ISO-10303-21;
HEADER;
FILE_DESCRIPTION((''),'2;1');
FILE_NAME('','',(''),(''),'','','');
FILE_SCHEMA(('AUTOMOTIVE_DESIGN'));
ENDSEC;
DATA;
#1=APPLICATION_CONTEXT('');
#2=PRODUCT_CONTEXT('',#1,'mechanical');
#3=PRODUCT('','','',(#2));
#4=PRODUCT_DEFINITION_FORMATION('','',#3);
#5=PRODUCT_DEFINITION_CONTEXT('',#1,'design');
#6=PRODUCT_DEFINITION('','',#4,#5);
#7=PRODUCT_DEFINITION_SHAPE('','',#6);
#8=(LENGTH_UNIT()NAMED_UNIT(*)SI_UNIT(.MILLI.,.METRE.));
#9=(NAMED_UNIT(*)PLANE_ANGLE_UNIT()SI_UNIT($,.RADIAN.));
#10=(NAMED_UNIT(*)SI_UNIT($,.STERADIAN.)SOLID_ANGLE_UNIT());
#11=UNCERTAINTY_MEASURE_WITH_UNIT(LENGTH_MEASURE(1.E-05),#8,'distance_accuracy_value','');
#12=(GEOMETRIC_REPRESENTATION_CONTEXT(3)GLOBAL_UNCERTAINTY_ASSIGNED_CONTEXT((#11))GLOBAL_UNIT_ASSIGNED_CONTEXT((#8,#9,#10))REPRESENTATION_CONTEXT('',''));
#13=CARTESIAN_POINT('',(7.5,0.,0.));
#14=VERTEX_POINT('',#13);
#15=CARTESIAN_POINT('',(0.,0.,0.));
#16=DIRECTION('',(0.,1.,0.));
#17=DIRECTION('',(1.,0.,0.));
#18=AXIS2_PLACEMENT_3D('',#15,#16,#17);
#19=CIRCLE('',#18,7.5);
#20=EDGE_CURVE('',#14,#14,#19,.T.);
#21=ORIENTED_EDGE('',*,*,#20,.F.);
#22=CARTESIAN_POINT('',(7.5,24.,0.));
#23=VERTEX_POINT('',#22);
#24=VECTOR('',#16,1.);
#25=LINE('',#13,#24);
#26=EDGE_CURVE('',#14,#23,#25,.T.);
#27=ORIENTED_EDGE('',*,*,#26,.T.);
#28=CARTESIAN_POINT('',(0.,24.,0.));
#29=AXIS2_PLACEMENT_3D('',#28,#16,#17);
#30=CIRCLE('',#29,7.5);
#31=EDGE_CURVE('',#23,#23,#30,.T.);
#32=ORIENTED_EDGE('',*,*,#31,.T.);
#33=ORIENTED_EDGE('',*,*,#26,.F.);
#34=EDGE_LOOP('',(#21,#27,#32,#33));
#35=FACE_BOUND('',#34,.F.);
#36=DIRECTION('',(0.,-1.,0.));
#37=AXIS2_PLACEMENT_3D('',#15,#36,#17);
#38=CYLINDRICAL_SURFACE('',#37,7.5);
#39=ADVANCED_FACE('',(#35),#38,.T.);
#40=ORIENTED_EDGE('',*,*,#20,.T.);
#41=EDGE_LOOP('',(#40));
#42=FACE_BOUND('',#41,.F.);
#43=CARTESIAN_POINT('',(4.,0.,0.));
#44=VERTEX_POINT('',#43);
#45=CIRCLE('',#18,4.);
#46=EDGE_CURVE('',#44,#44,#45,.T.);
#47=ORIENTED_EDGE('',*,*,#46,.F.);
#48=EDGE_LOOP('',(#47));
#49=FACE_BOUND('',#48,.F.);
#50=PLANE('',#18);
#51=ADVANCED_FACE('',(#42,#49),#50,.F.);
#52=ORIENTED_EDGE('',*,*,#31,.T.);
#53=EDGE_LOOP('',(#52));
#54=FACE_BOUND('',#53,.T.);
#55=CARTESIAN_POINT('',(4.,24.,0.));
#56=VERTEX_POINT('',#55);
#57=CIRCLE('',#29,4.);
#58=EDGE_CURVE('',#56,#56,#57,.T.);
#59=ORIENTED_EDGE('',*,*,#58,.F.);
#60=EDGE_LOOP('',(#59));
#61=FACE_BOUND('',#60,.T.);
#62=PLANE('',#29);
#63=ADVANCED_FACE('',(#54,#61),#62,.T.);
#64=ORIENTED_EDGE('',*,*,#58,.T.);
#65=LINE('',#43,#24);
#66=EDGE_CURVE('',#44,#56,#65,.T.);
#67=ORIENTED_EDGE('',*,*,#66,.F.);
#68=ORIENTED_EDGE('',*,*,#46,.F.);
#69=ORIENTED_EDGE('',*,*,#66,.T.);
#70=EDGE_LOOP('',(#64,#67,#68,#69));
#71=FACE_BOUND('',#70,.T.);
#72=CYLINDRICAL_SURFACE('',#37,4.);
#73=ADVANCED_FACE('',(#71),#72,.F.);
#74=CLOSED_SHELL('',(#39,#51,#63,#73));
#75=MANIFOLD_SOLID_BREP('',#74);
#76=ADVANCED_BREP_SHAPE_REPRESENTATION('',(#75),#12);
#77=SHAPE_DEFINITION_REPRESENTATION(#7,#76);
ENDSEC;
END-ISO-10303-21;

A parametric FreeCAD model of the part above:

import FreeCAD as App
import Part
import Sketcher
from FreeCAD import Vector
Q = App.Units.Quantity

doc = App.newDocument("Part")
params = doc.addObject("Spreadsheet::Sheet", "Params")
for row, (alias, value) in enumerate([
    ("sketch1_diameter", "15 mm"),
    ("sketch1_diameter2", "8 mm"),
    ("pad1_length", "24 mm"),
], start=1):
    params.set(f"A{row}", alias)
    params.set(f"B{row}", "=" + value)
    params.setAlias(f"B{row}", alias)

body = doc.addObject("PartDesign::Body", "Body")

# Sketch on XZ plane
sketch1 = doc.addObject("Sketcher::SketchObject", "Sketch")
body.addObject(sketch1)
sketch1.AttachmentSupport = (doc.XZ_Plane, [""])
sketch1.MapMode = "FlatFace"
sketch1.addGeometry([
    Part.Circle(Vector(0, 0, 0), Vector(0, 0, 1), 7.5),
    Part.Circle(Vector(0, 0, 0), Vector(0, 0, 1), 4),
], False)
sketch1.addConstraint([
    Sketcher.Constraint("Coincident", 0, 3, -1, 1),
    Sketcher.Constraint("Coincident", 1, 3, -1, 1),
    Sketcher.Constraint("Diameter", 0, Q("15 mm")),
    Sketcher.Constraint("Diameter", 1, Q("8 mm")),
])
sketch1.setExpression("Constraints[2]", "Params.sketch1_diameter")
sketch1.setExpression("Constraints[3]", "Params.sketch1_diameter2")
pad1 = doc.addObject("PartDesign::Pad", "Pad")
body.addObject(pad1)
pad1.Profile = sketch1
pad1.setExpression("Length", "Params.pad1_length")
pad1.Reversed = True

doc.recompute()
